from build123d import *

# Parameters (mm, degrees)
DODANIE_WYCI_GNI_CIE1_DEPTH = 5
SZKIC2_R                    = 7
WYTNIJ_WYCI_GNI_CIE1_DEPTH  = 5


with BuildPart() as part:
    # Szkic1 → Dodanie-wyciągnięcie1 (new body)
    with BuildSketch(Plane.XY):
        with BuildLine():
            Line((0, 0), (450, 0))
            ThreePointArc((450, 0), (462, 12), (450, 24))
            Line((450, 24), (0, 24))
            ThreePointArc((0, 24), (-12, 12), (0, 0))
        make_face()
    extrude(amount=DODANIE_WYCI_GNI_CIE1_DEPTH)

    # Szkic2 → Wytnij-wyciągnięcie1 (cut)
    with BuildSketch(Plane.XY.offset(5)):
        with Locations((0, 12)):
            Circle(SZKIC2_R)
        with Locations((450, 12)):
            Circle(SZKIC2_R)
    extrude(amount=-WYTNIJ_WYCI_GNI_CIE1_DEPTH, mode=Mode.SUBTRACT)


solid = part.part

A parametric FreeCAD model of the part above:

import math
import FreeCAD as App
import Part
import Sketcher

doc = App.newDocument("Part")
body = doc.addObject("PartDesign::Body", "Body")

# Sketch on XY plane
sketch1 = doc.addObject("Sketcher::SketchObject", "Sketch")
body.addObject(sketch1)
sketch1.AttachmentSupport = (doc.XY_Plane, [""])
sketch1.MapMode = "FlatFace"
sketch1.addGeometry([
    Part.LineSegment(App.Vector(0, 0, 0), App.Vector(450, 0, 0)),
    Part.ArcOfCircle(Part.Circle(App.Vector(450, 12, 0), App.Vector(0, 0, 1), 12), math.radians(-90), math.radians(90)),
    Part.LineSegment(App.Vector(450, 24, 0), App.Vector(0, 24, 0)),
    Part.ArcOfCircle(Part.Circle(App.Vector(0, 12, 0), App.Vector(0, 0, 1), 12), math.radians(90), math.radians(270)),
], False)
sketch1.addConstraint([
    Sketcher.Constraint("Tangent", 0, 2, 1, 1),
    Sketcher.Constraint("Tangent", 1, 2, 2, 1),
    Sketcher.Constraint("Tangent", 2, 2, 3, 1),
    Sketcher.Constraint("Tangent", 3, 2, 0, 1),
    Sketcher.Constraint("Horizontal", 0),
    Sketcher.Constraint("Horizontal", 2),
    Sketcher.Constraint("Coincident", 3, 2, -1, 1),
    Sketcher.Constraint("Radius", 1, 12.0),
    Sketcher.Constraint("DistanceX", 0, 1, 0, 2, 450.0),
])
pad1 = doc.addObject("PartDesign::Pad", "Pad")
body.addObject(pad1)
pad1.Profile = sketch1
pad1.Length = 5

# Sketch on XY plane
sketch2 = doc.addObject("Sketcher::SketchObject", "Sketch001")
body.addObject(sketch2)
sketch2.AttachmentSupport = (doc.XY_Plane, [""])
sketch2.MapMode = "FlatFace"
sketch2.AttachmentOffset = App.Placement(App.Vector(0, 0, 5), App.Rotation())
sketch2.addGeometry([
    Part.Circle(App.Vector(0, 12, 0), App.Vector(0, 0, 1), 7),
    Part.Circle(App.Vector(450, 12, 0), App.Vector(0, 0, 1), 7),
], False)
sketch2.addConstraint([
    Sketcher.Constraint("Equal", 0, 1),
    Sketcher.Constraint("PointOnObject", 0, 3, -2),
    Sketcher.Constraint("Horizontal", 0, 3, 1, 3),
    Sketcher.Constraint("Diameter", 0, 14.0),
    Sketcher.Constraint("DistanceY", -1, 1, 0, 3, 12.0),
    Sketcher.Constraint("DistanceX", -1, 1, 1, 3, 450.0),
])
pocket1 = doc.addObject("PartDesign::Pocket", "Pocket")
body.addObject(pocket1)
pocket1.Profile = sketch2
pocket1.Length = 5

doc.recompute()
